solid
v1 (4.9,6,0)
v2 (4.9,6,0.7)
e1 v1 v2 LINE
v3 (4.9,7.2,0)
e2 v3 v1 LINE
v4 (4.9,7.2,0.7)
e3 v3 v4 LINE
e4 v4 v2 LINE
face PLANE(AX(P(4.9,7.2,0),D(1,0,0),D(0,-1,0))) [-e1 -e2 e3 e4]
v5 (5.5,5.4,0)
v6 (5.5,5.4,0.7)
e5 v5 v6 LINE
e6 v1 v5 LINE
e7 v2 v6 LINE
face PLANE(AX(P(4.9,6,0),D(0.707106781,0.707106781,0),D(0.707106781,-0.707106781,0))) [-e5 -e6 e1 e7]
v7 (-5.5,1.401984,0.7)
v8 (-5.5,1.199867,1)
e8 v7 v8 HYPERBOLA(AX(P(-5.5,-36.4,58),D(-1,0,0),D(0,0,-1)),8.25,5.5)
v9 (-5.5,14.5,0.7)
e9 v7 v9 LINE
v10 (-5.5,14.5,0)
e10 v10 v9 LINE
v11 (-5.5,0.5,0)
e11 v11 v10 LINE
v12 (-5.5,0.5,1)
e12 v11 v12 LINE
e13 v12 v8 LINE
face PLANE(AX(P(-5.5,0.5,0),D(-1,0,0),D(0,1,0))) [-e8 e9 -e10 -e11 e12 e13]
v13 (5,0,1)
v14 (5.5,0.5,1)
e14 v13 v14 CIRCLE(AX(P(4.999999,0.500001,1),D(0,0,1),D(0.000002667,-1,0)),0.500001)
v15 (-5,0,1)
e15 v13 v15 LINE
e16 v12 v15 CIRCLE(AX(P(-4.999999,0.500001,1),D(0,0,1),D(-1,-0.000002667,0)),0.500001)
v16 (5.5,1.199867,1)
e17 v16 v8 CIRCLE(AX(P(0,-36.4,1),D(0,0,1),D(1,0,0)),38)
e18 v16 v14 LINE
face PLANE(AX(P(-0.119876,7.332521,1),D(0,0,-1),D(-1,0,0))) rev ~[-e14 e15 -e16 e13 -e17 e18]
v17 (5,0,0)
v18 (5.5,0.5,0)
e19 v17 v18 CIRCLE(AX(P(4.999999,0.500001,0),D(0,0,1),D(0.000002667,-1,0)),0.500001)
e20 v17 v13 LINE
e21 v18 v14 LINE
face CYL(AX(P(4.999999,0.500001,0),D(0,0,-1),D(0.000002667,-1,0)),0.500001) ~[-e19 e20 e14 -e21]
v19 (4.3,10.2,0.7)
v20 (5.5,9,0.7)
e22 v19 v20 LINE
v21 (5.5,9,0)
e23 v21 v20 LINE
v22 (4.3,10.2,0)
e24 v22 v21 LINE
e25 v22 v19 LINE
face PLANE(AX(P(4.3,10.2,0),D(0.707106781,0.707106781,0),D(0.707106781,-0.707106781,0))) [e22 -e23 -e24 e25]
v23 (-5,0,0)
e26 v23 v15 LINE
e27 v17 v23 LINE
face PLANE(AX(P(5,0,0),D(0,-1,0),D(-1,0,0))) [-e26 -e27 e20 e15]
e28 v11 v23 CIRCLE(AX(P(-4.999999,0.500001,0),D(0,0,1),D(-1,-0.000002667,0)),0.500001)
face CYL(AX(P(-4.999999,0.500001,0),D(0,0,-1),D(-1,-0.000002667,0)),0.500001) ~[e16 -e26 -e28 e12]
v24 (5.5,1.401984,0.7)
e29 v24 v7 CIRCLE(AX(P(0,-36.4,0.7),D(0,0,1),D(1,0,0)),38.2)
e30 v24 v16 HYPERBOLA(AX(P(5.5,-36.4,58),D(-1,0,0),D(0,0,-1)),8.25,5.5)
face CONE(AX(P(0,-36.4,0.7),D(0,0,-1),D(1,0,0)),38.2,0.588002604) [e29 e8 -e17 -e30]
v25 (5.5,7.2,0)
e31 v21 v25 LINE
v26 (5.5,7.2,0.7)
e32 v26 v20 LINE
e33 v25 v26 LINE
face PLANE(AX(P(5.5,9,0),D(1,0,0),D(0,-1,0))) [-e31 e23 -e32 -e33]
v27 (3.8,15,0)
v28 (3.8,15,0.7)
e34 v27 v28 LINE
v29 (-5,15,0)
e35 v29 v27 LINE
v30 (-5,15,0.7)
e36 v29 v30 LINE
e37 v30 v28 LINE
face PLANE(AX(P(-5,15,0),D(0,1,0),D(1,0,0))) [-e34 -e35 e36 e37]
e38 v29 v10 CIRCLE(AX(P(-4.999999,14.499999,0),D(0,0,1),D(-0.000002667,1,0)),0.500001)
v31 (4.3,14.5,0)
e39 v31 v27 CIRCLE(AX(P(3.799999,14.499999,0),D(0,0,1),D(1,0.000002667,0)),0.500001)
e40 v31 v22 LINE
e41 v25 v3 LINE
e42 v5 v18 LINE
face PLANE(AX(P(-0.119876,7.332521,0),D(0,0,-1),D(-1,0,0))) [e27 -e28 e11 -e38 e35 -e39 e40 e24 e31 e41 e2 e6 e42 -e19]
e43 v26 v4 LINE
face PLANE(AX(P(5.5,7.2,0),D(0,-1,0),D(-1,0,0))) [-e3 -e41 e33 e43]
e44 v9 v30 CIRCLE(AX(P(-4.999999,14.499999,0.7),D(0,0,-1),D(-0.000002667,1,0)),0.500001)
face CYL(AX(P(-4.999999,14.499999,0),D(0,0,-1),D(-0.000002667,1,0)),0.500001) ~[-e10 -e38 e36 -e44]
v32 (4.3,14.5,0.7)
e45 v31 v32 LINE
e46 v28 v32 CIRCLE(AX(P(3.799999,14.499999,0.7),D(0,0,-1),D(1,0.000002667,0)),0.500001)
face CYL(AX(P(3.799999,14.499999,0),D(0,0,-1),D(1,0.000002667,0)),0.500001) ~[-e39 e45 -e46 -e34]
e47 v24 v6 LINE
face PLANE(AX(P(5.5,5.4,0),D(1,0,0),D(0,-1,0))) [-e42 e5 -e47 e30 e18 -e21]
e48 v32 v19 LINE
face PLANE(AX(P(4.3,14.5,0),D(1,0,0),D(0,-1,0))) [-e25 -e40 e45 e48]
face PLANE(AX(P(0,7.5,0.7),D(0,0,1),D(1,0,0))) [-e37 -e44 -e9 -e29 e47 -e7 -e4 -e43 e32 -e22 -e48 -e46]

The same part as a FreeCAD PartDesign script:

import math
import FreeCAD as App
import Part
import Sketcher
Q = App.Units.Quantity


def add_polygon(sketch, points):
    """Adds a closed chain of lines whose ends are joined by coincident constraints."""
    first, n = sketch.GeometryCount, len(points)
    for a, b in zip(points, points[1:] + points[:1]):
        sketch.addGeometry(Part.LineSegment(App.Vector(*a, 0), App.Vector(*b, 0)), False)
    for i in range(n):
        sketch.addConstraint(Sketcher.Constraint("Coincident", first + i, 2, first + (i + 1) % n, 1))

doc = App.newDocument("Part")
body = doc.addObject("PartDesign::Body", "Body")

sketch1 = doc.addObject("Sketcher::SketchObject", "Sketch")
body.addObject(sketch1)
sketch1.AttachmentSupport = (doc.XZ_Plane, [""])
sketch1.MapMode = "FlatFace"
sketch1.AttachmentOffset = App.Placement(App.Vector(0, 0, 36.4), App.Rotation())
add_polygon(sketch1, [(0, 0.7), (38.2, 0.7), (38, 1), (0, 1)])
sketch1.addConstraint([
    Sketcher.Constraint("Horizontal", 0),
    Sketcher.Constraint("Horizontal", 2),
    Sketcher.Constraint("Vertical", 3),
    Sketcher.Constraint("PointOnObject", 2, 2, -2),
    Sketcher.Constraint("DistanceX", 2, 2, 2, 1, 38.0),
    Sketcher.Constraint("DistanceX", 0, 1, 0, 2, 38.2),
    Sketcher.Constraint("DistanceY", 3, 2, 3, 1, 0.3),
    Sketcher.Constraint("DistanceY", -1, 1, 1, 2, 1.0),
])
revolution = doc.addObject("PartDesign::Revolution", "Revolution")
body.addObject(revolution)
revolution.Profile = sketch1
revolution.ReferenceAxis = (sketch1, ["V_Axis"])
revolution.Angle = 360
body2 = doc.addObject("PartDesign::Body", "Body001")

sketch2 = doc.addObject("Sketcher::SketchObject", "Sketch001")
body2.addObject(sketch2)
sketch2.AttachmentSupport = (doc.getObject("XY_Plane001"), [""])
sketch2.MapMode = "FlatFace"
sketch2.AttachmentOffset = App.Placement(App.Vector(0, 0, 0.7), App.Rotation())
add_polygon(sketch2, [(-6, 15), (-6, 0), (6, 0), (6, 15)])
sketch2.addConstraint([
    Sketcher.Constraint("Vertical", 0),
    Sketcher.Constraint("Horizontal", 1),
    Sketcher.Constraint("Vertical", 2),
    Sketcher.Constraint("Horizontal", 3),
    Sketcher.Constraint("Symmetric", 0, 2, 1, 2, -1, 1),
    Sketcher.Constraint("DistanceX", 1, 1, 1, 2, 11.0),
    Sketcher.Constraint("DistanceY", 0, 2, 0, 1, 15.0),
])
pad1 = doc.addObject("PartDesign::Pad", "Pad")
body2.addObject(pad1)
pad1.Profile = sketch2
pad1.Length = 0.3
doc.recompute()

boolean = doc.addObject("PartDesign::Boolean", "Boolean")
body2.addObject(boolean)
boolean.Type = "Cut"
boolean.addObjects([body])
body3 = doc.addObject("PartDesign::Body", "Body002")

sketch3 = doc.addObject("Sketcher::SketchObject", "Sketch002")
body3.addObject(sketch3)
sketch3.AttachmentSupport = (doc.getObject("XY_Plane002"), [""])
sketch3.MapMode = "FlatFace"
sketch3.addGeometry([
    Part.LineSegment(App.Vector(-5.5, 14.5, 0), App.Vector(-5.5, 0.5, 0)),
    Part.ArcOfCircle(Part.Circle(App.Vector(-5, 0.5, 0), App.Vector(0, 0, 1), 0.5), math.radians(-180), math.radians(-90)),
    Part.LineSegment(App.Vector(-5, 0, 0), App.Vector(5, 0, 0)),
    Part.ArcOfCircle(Part.Circle(App.Vector(5, 0.5, 0), App.Vector(0, 0, 1), 0.5), math.radians(-90), math.radians(0)),
    Part.LineSegment(App.Vector(5.5, 0.5, 0), App.Vector(5.5, 5.4, 0)),
    Part.LineSegment(App.Vector(5.5, 5.4, 0), App.Vector(4.9, 6, 0)),
    Part.LineSegment(App.Vector(4.9, 6, 0), App.Vector(4.9, 7.2, 0)),
    Part.LineSegment(App.Vector(4.9, 7.2, 0), App.Vector(5.5, 7.2, 0)),
    Part.LineSegment(App.Vector(5.5, 7.2, 0), App.Vector(5.5, 9, 0)),
    Part.LineSegment(App.Vector(5.5, 9, 0), App.Vector(4.3, 10.2, 0)),
    Part.LineSegment(App.Vector(4.3, 10.2, 0), App.Vector(4.3, 14.5, 0)),
    Part.ArcOfCircle(Part.Circle(App.Vector(3.8, 14.5, 0), App.Vector(0, 0, 1), 0.5), math.radians(0), math.radians(90)),
    Part.LineSegment(App.Vector(3.8, 15, 0), App.Vector(-5, 15, 0)),
    Part.ArcOfCircle(Part.Circle(App.Vector(-5, 14.5, 0), App.Vector(0, 0, 1), 0.5), math.radians(90), math.radians(180)),
], False)
sketch3.addConstraint([
    Sketcher.Constraint("Coincident", 0, 2, 1, 1),
    Sketcher.Constraint("Coincident", 1, 2, 2, 1),
    Sketcher.Constraint("Coincident", 2, 2, 3, 1),
    Sketcher.Constraint("Coincident", 3, 2, 4, 1),
    Sketcher.Constraint("Coincident", 4, 2, 5, 1),
    Sketcher.Constraint("Coincident", 5, 2, 6, 1),
    Sketcher.Constraint("Coincident", 6, 2, 7, 1),
    Sketcher.Constraint("Coincident", 7, 2, 8, 1),
    Sketcher.Constraint("Coincident", 8, 2, 9, 1),
    Sketcher.Constraint("Coincident", 9, 2, 10, 1),
    Sketcher.Constraint("Coincident", 10, 2, 11, 1),
    Sketcher.Constraint("Coincident", 11, 2, 12, 1),
    Sketcher.Constraint("Coincident", 12, 2, 13, 1),
    Sketcher.Constraint("Coincident", 13, 2, 0, 1),
    Sketcher.Constraint("Vertical", 0),
    Sketcher.Constraint("Horizontal", 2),
    Sketcher.Constraint("Vertical", 4),
    Sketcher.Constraint("Vertical", 6),
    Sketcher.Constraint("Horizontal", 7),
    Sketcher.Constraint("Vertical", 8),
    Sketcher.Constraint("Vertical", 10),
    Sketcher.Constraint("Horizontal", 12),
    Sketcher.Constraint("Equal", 1, 3),
    Sketcher.Constraint("Equal", 3, 11),
    Sketcher.Constraint("Equal", 11, 13),
    Sketcher.Constraint("Symmetric", 1, 2, 2, 2, -1, 1),
    Sketcher.Constraint("Symmetric", 0, 2, 3, 2, -2),
    Sketcher.Constraint("Parallel", 5, 9),
    Sketcher.Constraint("Horizontal", 3, 3, 0, 2),
    Sketcher.Constraint("Horizontal", 13, 3, 10, 2),
    Sketcher.Constraint("Horizontal", 10, 2, 13, 2),
    Sketcher.Constraint("Vertical", 13, 3, 1, 2),
    Sketcher.Constraint("Vertical", 4, 2, 7, 2),
    Sketcher.Constraint("Vertical", 1, 2, 12, 2),
    Sketcher.Constraint("Radius", 1, 0.500001),
    Sketcher.Constraint("DistanceX", 2, 1, 2, 2, 10.0),
    Sketcher.Constraint("DistanceY", 0, 2, 0, 1, 14.0),
    Sketcher.Constraint("Angle", 5, Q("135 deg")),
    Sketcher.Constraint("DistanceX", 7, 1, 7, 2, 0.6),
    Sketcher.Constraint("DistanceX", 12, 2, 12, 1, 8.8),
    Sketcher.Constraint("DistanceY", 4, 1, 4, 2, 4.9),
    Sketcher.Constraint("DistanceY", 6, 1, 6, 2, 1.2),
    Sketcher.Constraint("DistanceY", 8, 1, 8, 2, 1.8),
    Sketcher.Constraint("DistanceY", 10, 1, 10, 2, 4.3),
])
pad2 = doc.addObject("PartDesign::Pad", "Pad001")
body3.addObject(pad2)
pad2.Profile = sketch3
pad2.Length = 1
doc.recompute()

boolean2 = doc.addObject("PartDesign::Boolean", "Boolean001")
body3.addObject(boolean2)
boolean2.Type = "Cut"
boolean2.addObjects([body2])

doc.recompute()
